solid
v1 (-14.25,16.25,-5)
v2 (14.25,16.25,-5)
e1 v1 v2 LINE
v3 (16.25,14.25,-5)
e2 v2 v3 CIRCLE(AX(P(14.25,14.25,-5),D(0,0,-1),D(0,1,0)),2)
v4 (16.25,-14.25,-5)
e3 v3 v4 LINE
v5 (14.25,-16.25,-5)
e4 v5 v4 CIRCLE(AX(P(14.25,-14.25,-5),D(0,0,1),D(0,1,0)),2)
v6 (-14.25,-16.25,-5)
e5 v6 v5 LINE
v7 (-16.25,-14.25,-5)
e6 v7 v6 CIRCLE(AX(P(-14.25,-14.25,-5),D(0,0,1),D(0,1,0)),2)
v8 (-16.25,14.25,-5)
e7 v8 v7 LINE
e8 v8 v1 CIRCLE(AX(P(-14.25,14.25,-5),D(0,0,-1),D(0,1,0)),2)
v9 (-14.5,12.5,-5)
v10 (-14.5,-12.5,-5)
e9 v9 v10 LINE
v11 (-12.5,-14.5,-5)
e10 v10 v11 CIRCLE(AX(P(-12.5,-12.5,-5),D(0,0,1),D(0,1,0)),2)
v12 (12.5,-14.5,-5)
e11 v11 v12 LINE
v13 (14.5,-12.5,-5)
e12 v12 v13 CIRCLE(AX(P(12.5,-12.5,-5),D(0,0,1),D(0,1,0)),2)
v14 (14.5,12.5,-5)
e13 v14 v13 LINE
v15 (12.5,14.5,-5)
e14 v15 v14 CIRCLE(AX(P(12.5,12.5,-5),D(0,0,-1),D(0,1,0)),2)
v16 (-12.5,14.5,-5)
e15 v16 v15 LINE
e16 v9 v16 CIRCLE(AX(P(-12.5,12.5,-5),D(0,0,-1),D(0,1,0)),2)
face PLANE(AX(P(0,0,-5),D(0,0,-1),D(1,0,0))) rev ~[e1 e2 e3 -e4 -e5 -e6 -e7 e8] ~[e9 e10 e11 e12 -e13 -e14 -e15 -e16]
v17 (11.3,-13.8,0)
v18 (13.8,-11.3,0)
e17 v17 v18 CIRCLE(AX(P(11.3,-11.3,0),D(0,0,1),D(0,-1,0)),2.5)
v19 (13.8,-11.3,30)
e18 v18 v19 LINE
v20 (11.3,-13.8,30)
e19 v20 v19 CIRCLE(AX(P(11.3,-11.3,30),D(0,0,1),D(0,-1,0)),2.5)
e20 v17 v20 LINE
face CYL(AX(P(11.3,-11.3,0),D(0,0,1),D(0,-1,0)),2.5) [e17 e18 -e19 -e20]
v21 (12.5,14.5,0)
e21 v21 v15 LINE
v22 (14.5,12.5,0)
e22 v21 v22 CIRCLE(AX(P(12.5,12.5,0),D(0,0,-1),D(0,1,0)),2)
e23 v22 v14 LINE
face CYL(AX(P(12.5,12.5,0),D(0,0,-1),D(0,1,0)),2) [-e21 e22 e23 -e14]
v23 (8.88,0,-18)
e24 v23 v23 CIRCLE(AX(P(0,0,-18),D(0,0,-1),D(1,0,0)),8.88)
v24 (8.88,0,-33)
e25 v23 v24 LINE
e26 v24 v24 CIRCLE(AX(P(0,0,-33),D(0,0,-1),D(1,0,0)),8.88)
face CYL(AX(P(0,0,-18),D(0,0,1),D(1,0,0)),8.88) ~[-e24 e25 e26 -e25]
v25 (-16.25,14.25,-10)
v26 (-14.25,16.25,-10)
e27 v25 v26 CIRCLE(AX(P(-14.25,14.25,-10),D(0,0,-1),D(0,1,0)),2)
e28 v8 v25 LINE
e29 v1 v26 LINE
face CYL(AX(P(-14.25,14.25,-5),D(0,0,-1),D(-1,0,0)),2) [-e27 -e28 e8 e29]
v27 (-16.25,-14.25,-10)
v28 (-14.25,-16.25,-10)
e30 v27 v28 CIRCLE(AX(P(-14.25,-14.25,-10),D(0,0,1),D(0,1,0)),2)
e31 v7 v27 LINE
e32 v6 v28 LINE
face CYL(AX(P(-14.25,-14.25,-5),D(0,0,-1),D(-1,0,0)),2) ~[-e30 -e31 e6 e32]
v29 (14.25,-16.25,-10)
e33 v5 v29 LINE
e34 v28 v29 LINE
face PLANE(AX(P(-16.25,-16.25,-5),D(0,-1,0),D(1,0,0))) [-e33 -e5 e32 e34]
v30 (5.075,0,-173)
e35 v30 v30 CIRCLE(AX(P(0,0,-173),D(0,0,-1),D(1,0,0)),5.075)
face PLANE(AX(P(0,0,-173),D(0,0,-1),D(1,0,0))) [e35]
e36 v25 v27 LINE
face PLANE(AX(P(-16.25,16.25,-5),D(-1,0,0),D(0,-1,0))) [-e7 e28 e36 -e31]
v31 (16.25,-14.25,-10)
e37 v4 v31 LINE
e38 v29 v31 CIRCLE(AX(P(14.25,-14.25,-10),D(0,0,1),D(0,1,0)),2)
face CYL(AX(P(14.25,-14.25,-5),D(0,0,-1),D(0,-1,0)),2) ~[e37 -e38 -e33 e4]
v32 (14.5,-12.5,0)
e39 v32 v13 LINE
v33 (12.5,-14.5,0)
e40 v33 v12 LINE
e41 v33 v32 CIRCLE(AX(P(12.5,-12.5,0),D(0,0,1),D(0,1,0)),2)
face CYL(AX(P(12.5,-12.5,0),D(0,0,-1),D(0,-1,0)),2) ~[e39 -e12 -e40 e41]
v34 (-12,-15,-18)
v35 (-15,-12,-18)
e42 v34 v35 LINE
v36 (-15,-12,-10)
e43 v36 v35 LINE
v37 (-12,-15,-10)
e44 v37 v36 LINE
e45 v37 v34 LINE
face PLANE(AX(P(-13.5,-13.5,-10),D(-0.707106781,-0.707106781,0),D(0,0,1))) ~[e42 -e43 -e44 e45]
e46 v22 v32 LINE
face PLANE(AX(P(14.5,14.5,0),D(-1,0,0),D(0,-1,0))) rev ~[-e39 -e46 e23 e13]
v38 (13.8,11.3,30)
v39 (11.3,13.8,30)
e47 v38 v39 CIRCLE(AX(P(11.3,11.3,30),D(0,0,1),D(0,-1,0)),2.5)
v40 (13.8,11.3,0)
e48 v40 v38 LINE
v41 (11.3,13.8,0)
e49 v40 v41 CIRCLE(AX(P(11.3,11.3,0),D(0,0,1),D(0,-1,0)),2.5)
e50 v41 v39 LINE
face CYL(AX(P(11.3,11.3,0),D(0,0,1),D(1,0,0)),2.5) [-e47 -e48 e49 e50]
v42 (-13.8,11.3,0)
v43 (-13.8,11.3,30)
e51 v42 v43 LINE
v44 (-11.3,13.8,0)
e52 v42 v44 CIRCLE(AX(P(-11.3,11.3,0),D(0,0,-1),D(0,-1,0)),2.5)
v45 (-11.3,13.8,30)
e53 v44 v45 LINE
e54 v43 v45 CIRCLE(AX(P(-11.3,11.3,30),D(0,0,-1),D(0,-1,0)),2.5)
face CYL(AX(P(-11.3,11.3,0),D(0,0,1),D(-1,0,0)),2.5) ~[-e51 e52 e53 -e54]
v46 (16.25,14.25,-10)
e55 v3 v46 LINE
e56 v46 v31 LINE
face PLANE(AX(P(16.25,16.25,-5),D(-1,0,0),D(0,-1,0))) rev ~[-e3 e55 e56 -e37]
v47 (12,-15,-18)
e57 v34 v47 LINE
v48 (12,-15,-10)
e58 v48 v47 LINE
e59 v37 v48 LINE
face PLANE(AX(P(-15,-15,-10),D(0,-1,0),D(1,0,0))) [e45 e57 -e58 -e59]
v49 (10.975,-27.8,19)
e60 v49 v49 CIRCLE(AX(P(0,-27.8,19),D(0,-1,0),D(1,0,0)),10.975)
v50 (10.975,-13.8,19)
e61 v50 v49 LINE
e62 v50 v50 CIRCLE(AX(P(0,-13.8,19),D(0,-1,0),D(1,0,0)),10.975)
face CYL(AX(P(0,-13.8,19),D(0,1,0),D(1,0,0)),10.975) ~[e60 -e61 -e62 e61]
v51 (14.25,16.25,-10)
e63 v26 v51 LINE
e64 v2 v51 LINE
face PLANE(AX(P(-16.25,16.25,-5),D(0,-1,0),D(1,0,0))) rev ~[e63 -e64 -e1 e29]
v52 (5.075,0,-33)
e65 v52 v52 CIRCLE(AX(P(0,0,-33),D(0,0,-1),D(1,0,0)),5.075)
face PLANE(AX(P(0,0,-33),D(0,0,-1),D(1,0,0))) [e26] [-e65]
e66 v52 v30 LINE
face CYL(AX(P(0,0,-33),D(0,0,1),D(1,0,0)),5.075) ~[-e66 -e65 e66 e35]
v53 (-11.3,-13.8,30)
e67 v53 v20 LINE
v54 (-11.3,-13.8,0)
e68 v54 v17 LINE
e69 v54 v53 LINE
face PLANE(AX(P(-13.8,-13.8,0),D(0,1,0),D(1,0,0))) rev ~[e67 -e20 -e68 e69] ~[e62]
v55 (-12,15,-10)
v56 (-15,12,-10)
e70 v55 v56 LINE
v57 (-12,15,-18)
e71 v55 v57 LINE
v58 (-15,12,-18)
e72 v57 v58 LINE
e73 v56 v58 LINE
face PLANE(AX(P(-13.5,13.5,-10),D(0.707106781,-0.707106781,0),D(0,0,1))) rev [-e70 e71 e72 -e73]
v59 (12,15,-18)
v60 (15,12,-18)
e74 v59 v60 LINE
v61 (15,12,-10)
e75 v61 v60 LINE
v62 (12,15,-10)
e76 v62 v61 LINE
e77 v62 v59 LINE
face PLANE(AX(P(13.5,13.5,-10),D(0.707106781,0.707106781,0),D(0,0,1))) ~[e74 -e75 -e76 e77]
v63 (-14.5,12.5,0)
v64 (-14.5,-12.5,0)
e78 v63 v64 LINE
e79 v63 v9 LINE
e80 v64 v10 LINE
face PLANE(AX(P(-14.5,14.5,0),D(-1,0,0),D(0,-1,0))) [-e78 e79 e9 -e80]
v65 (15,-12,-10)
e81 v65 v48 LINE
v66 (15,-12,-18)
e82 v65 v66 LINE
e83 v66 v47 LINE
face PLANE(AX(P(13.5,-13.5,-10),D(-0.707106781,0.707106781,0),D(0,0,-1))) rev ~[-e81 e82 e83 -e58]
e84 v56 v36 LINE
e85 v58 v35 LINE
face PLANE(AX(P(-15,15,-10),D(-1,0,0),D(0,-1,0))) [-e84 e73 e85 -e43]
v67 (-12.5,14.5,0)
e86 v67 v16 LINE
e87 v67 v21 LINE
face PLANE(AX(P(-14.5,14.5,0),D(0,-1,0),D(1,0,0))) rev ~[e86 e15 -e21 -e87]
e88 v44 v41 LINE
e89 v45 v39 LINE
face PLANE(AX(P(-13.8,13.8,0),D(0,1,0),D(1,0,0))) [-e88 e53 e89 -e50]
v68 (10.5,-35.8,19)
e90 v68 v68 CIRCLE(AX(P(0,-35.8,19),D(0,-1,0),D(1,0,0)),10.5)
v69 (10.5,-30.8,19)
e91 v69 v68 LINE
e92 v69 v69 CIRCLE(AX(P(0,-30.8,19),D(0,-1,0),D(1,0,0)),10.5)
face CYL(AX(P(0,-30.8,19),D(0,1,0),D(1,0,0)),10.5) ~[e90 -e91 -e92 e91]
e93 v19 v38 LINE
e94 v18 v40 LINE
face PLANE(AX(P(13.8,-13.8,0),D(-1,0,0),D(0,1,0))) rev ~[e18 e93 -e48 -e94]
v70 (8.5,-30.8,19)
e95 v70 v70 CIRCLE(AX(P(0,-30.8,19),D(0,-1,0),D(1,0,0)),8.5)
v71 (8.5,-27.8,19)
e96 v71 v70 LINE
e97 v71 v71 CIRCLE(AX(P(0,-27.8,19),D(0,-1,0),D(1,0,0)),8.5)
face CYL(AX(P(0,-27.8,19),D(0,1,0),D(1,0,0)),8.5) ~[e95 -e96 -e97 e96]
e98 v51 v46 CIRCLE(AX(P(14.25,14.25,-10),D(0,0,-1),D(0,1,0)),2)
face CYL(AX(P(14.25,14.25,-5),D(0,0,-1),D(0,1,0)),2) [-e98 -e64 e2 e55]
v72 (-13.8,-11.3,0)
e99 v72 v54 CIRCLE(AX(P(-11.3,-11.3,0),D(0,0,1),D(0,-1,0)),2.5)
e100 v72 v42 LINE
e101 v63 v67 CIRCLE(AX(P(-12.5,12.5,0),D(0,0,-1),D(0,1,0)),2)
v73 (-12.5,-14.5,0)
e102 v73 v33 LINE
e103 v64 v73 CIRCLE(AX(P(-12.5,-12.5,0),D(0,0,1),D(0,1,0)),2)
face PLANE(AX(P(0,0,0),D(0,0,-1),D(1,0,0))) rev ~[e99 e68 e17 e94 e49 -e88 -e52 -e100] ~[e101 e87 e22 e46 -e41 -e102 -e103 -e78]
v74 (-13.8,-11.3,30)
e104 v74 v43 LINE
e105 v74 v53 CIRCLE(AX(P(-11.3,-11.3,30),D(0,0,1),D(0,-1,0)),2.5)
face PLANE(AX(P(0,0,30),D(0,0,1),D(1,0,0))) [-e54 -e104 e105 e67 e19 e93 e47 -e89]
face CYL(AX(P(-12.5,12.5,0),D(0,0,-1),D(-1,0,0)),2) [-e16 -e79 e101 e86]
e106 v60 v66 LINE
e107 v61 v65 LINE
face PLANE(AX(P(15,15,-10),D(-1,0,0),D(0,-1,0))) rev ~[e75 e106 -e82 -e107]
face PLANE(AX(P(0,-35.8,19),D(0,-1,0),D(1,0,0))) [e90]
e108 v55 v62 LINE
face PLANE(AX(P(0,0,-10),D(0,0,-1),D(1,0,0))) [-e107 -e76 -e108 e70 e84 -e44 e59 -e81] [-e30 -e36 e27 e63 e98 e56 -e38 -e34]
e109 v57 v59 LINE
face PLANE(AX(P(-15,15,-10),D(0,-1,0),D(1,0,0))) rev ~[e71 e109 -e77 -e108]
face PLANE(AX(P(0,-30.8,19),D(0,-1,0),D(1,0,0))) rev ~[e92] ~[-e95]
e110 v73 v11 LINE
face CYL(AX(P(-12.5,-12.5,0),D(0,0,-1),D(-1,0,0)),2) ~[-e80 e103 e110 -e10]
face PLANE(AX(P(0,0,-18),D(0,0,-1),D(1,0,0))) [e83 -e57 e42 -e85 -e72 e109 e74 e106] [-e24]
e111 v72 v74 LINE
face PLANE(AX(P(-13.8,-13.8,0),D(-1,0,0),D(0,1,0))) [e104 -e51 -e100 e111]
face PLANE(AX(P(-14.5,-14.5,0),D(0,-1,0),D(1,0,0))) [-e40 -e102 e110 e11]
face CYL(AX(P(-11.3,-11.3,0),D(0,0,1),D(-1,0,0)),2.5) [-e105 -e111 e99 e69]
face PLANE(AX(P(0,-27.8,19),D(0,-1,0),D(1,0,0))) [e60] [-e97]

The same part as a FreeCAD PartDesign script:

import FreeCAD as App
import Part
import Sketcher


def edges_at(feature, points):
    """Names of the edges that pass closest to the given points."""
    edges = feature.Shape.Edges
    near = lambda p: min(range(len(edges)), key=lambda i: edges[i].distToShape(Part.Vertex(*p))[0])
    return sorted({f"Edge{near(p) + 1}" for p in points})


def add_polygon(sketch, points):
    """Adds a closed chain of lines whose ends are joined by coincident constraints."""
    first, n = sketch.GeometryCount, len(points)
    for a, b in zip(points, points[1:] + points[:1]):
        sketch.addGeometry(Part.LineSegment(App.Vector(*a, 0), App.Vector(*b, 0)), False)
    for i in range(n):
        sketch.addConstraint(Sketcher.Constraint("Coincident", first + i, 2, first + (i + 1) % n, 1))

doc = App.newDocument("Part")
body = doc.addObject("PartDesign::Body", "Body")

# Sketch on XY plane
sketch1 = body.newObject("Sketcher::SketchObject", "Sketch")
sketch1.AttachmentSupport = (doc.getObject("XY_Plane"), [""])
sketch1.MapMode = "FlatFace"
add_polygon(sketch1, [(-14, 14), (-14, -14), (14, -14), (14, 14)])  # lines 0-3
sketch1.addConstraint(Sketcher.Constraint("Vertical", 0))
sketch1.addConstraint(Sketcher.Constraint("Horizontal", 1))
sketch1.addConstraint(Sketcher.Constraint("Vertical", 2))
sketch1.addConstraint(Sketcher.Constraint("Horizontal", 3))
sketch1.addConstraint(Sketcher.Constraint("Symmetric", 0, 2, 2, 2, -1, 1))
sketch1.addConstraint(Sketcher.Constraint("Equal", 3, 0))
sketch1.addConstraint(Sketcher.Constraint("DistanceX", 1, 1, 1, 2, 27.6))
pad1 = body.newObject("PartDesign::Pad", "Pad")
pad1.Profile = sketch1
pad1.Length = 30
doc.recompute()

fillet = body.newObject("PartDesign::Fillet", "Fillet")
fillet.Base = (pad1, edges_at(pad1, [
    (-13.8, -13.8, 15),
    (13.8, -13.8, 15),
    (13.8, 13.8, 15),
    (-13.8, 13.8, 15),
]))
fillet.Radius = 2.5

# Sketch on XZ plane
sketch2 = body.newObject("Sketcher::SketchObject", "Sketch001")
sketch2.AttachmentSupport = (doc.getObject("XZ_Plane"), [""])
sketch2.MapMode = "FlatFace"
sketch2.AttachmentOffset = App.Placement(App.Vector(0, 0, 13.8), App.Rotation())
sketch2.addGeometry(Part.Circle(App.Vector(0, 19, 0), App.Vector(0, 0, 1), 11), False)
sketch2.addConstraint(Sketcher.Constraint("PointOnObject", 0, 3, -2))
sketch2.addConstraint(Sketcher.Constraint("Diameter", 0, 21.95))
sketch2.addConstraint(Sketcher.Constraint("DistanceY", -1, 1, 0, 3, 19.0))
pad2 = body.newObject("PartDesign::Pad", "Pad001")
pad2.Profile = sketch2
pad2.Length = 14

# Sketch on XZ plane
sketch3 = body.newObject("Sketcher::SketchObject", "Sketch002")
sketch3.AttachmentSupport = (doc.getObject("XZ_Plane"), [""])
sketch3.MapMode = "FlatFace"
sketch3.AttachmentOffset = App.Placement(App.Vector(0, 0, 27.8), App.Rotation())
sketch3.addGeometry(Part.Circle(App.Vector(0, 19, 0), App.Vector(0, 0, 1), 8), False)
sketch3.addConstraint(Sketcher.Constraint("PointOnObject", 0, 3, -2))
sketch3.addConstraint(Sketcher.Constraint("Diameter", 0, 17.0))
sketch3.addConstraint(Sketcher.Constraint("DistanceY", -1, 1, 0, 3, 19.0))
pad3 = body.newObject("PartDesign::Pad", "Pad002")
pad3.Profile = sketch3
pad3.Length = 3

# Sketch on XZ plane
sketch4 = body.newObject("Sketcher::SketchObject", "Sketch003")
sketch4.AttachmentSupport = (doc.getObject("XZ_Plane"), [""])
sketch4.MapMode = "FlatFace"
sketch4.AttachmentOffset = App.Placement(App.Vector(0, 0, 30.8), App.Rotation())
sketch4.addGeometry(Part.Circle(App.Vector(0, 19, 0), App.Vector(0, 0, 1), 10), False)
sketch4.addConstraint(Sketcher.Constraint("PointOnObject", 0, 3, -2))
sketch4.addConstraint(Sketcher.Constraint("Diameter", 0, 21.0))
sketch4.addConstraint(Sketcher.Constraint("DistanceY", -1, 1, 0, 3, 19.0))
pad4 = body.newObject("PartDesign::Pad", "Pad003")
pad4.Profile = sketch4
pad4.Length = 5

# Sketch on XY plane
sketch5 = body.newObject("Sketcher::SketchObject", "Sketch004")
sketch5.AttachmentSupport = (doc.getObject("XY_Plane"), [""])
sketch5.MapMode = "FlatFace"
add_polygon(sketch5, [(-14, -14), (-14, 14), (14, 14), (14, -14)])  # lines 0-3
sketch5.addConstraint(Sketcher.Constraint("Vertical", 0))
sketch5.addConstraint(Sketcher.Constraint("Horizontal", 1))
sketch5.addConstraint(Sketcher.Constraint("Vertical", 2))
sketch5.addConstraint(Sketcher.Constraint("Horizontal", 3))
sketch5.addConstraint(Sketcher.Constraint("Symmetric", 0, 2, 2, 2, -1, 1))
sketch5.addConstraint(Sketcher.Constraint("Equal", 3, 0))
sketch5.addConstraint(Sketcher.Constraint("DistanceX", 1, 1, 1, 2, 29.0))
pad5 = body.newObject("PartDesign::Pad", "Pad004")
pad5.Profile = sketch5
pad5.Length = 5
pad5.Reversed = True
doc.recompute()

fillet2 = body.newObject("PartDesign::Fillet", "Fillet001")
fillet2.Base = (pad5, edges_at(pad5, [
    (-14.5, 14.5, -2.5),
    (-14.5, -14.5, -2.5),
    (14.5, -14.5, -2.5),
    (14.5, 14.5, -2.5),
]))
fillet2.Radius = 2

# Sketch on XY plane
sketch6 = body.newObject("Sketcher::SketchObject", "Sketch005")
sketch6.AttachmentSupport = (doc.getObject("XY_Plane"), [""])
sketch6.MapMode = "FlatFace"
sketch6.AttachmentOffset = App.Placement(App.Vector(0, 0, -5), App.Rotation())
add_polygon(sketch6, [(-16, -16), (-16, 16), (16, 16), (16, -16)])  # lines 0-3
sketch6.addConstraint(Sketcher.Constraint("Vertical", 0))
sketch6.addConstraint(Sketcher.Constraint("Horizontal", 1))
sketch6.addConstraint(Sketcher.Constraint("Vertical", 2))
sketch6.addConstraint(Sketcher.Constraint("Horizontal", 3))
sketch6.addConstraint(Sketcher.Constraint("Symmetric", 0, 2, 2, 2, -1, 1))
sketch6.addConstraint(Sketcher.Constraint("Equal", 3, 0))
sketch6.addConstraint(Sketcher.Constraint("DistanceX", 1, 1, 1, 2, 32.5))
pad6 = body.newObject("PartDesign::Pad", "Pad005")
pad6.Profile = sketch6
pad6.Length = 5
pad6.Reversed = True
doc.recompute()

fillet3 = body.newObject("PartDesign::Fillet", "Fillet002")
fillet3.Base = (pad6, edges_at(pad6, [
    (16.25, -16.25, -7.5),
    (16.25, 16.25, -7.5),
    (-16.25, 16.25, -7.5),
    (-16.25, -16.25, -7.5),
]))
fillet3.Radius = 2

# Sketch on XY plane
sketch7 = body.newObject("Sketcher::SketchObject", "Sketch006")
sketch7.AttachmentSupport = (doc.getObject("XY_Plane"), [""])
sketch7.MapMode = "FlatFace"
sketch7.AttachmentOffset = App.Placement(App.Vector(0, 0, -10), App.Rotation())
add_polygon(sketch7, [(-15, -15), (-15, 15), (15, 15), (15, -15)])  # lines 0-3
sketch7.addConstraint(Sketcher.Constraint("Vertical", 0))
sketch7.addConstraint(Sketcher.Constraint("Horizontal", 1))
sketch7.addConstraint(Sketcher.Constraint("Vertical", 2))
sketch7.addConstraint(Sketcher.Constraint("Horizontal", 3))
sketch7.addConstraint(Sketcher.Constraint("Symmetric", 0, 2, 2, 2, -1, 1))
sketch7.addConstraint(Sketcher.Constraint("Equal", 3, 0))
sketch7.addConstraint(Sketcher.Constraint("DistanceX", 1, 1, 1, 2, 30.0))
pad7 = body.newObject("PartDesign::Pad", "Pad006")
pad7.Profile = sketch7
pad7.Length = 8
pad7.Reversed = True
doc.recompute()

chamfer = body.newObject("PartDesign::Chamfer", "Chamfer")
chamfer.Base = (pad7, edges_at(pad7, [
    (-15, -15, -14),
    (15, -15, -14),
    (15, 15, -14),
    (-15, 15, -14),
]))
chamfer.Size = 3

# Sketch on XY plane
sketch8 = body.newObject("Sketcher::SketchObject", "Sketch007")
sketch8.AttachmentSupport = (doc.getObject("XY_Plane"), [""])
sketch8.MapMode = "FlatFace"
sketch8.AttachmentOffset = App.Placement(App.Vector(0, 0, -18), App.Rotation())
sketch8.addGeometry(Part.Circle(App.Vector(0, 0, 0), App.Vector(0, 0, 1), 9), False)
sketch8.addConstraint(Sketcher.Constraint("Coincident", 0, 3, -1, 1))
sketch8.addConstraint(Sketcher.Constraint("Diameter", 0, 17.76))
pad8 = body.newObject("PartDesign::Pad", "Pad007")
pad8.Profile = sketch8
pad8.Length = 15
pad8.Reversed = True

# Sketch on XY plane
sketch9 = body.newObject("Sketcher::SketchObject", "Sketch008")
sketch9.AttachmentSupport = (doc.getObject("XY_Plane"), [""])
sketch9.MapMode = "FlatFace"
sketch9.AttachmentOffset = App.Placement(App.Vector(0, 0, -33), App.Rotation())
sketch9.addGeometry(Part.Circle(App.Vector(0, 0, 0), App.Vector(0, 0, 1), 5), False)
sketch9.addConstraint(Sketcher.Constraint("Coincident", 0, 3, -1, 1))
sketch9.addConstraint(Sketcher.Constraint("Diameter", 0, 10.15))
pad9 = body.newObject("PartDesign::Pad", "Pad008")
pad9.Profile = sketch9
pad9.Length = 140
pad9.Reversed = True

doc.recompute()
